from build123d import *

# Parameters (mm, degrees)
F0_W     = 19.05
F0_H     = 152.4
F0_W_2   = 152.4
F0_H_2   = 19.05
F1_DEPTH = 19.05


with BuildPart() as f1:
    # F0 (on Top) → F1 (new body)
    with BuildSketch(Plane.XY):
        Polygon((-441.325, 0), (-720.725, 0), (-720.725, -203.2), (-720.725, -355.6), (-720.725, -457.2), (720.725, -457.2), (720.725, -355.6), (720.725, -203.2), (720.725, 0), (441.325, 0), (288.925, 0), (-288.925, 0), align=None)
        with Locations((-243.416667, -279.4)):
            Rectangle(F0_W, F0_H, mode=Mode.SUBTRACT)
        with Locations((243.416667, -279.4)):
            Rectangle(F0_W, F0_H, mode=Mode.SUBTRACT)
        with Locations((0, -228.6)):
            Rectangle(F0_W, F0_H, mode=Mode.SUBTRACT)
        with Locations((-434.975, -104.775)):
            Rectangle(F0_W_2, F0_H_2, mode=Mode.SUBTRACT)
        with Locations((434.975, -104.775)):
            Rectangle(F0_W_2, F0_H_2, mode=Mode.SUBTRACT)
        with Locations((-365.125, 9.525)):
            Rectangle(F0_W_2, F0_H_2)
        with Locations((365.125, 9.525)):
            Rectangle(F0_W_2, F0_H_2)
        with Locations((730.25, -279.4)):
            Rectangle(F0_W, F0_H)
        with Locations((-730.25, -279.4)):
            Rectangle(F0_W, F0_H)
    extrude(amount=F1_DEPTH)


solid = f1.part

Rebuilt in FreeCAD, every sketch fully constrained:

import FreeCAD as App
import Part
import Sketcher
Q = App.Units.Quantity

doc = App.newDocument("Part")
body = doc.addObject("PartDesign::Body", "Body")

# Sketch on XY plane
sketch1 = body.newObject("Sketcher::SketchObject", "Sketch")
sketch1.AttachmentSupport = (doc.getObject("XY_Plane"), [""])
sketch1.MapMode = "FlatFace"
sketch1.addGeometry(Part.LineSegment(App.Vector(-721, 0, 0), App.Vector(-721, -203, 0)), False)
sketch1.addGeometry(Part.LineSegment(App.Vector(-721, -203, 0), App.Vector(-740, -203, 0)), False)
sketch1.addGeometry(Part.LineSegment(App.Vector(-740, -203, 0), App.Vector(-740, -356, 0)), False)
sketch1.addGeometry(Part.LineSegment(App.Vector(-740, -356, 0), App.Vector(-721, -356, 0)), False)
sketch1.addGeometry(Part.LineSegment(App.Vector(-721, -356, 0), App.Vector(-721, -457, 0)), False)
sketch1.addGeometry(Part.LineSegment(App.Vector(-721, -457, 0), App.Vector(721, -457, 0)), False)
sketch1.addGeometry(Part.LineSegment(App.Vector(721, -457, 0), App.Vector(721, -356, 0)), False)
sketch1.addGeometry(Part.LineSegment(App.Vector(721, -356, 0), App.Vector(740, -356, 0)), False)
sketch1.addGeometry(Part.LineSegment(App.Vector(740, -356, 0), App.Vector(740, -203, 0)), False)
sketch1.addGeometry(Part.LineSegment(App.Vector(740, -203, 0), App.Vector(721, -203, 0)), False)
sketch1.addGeometry(Part.LineSegment(App.Vector(721, -203, 0), App.Vector(721, 0, 0)), False)
sketch1.addGeometry(Part.LineSegment(App.Vector(721, 0, 0), App.Vector(441, 0, 0)), False)
sketch1.addGeometry(Part.LineSegment(App.Vector(441, 0, 0), App.Vector(441, 19, 0)), False)
sketch1.addGeometry(Part.LineSegment(App.Vector(441, 19, 0), App.Vector(289, 19, 0)), False)
sketch1.addGeometry(Part.LineSegment(App.Vector(289, 19, 0), App.Vector(289, 0, 0)), False)
sketch1.addGeometry(Part.LineSegment(App.Vector(289, 0, 0), App.Vector(-289, 0, 0)), False)
sketch1.addGeometry(Part.LineSegment(App.Vector(-289, 0, 0), App.Vector(-289, 19, 0)), False)
sketch1.addGeometry(Part.LineSegment(App.Vector(-289, 19, 0), App.Vector(-441, 19, 0)), False)
sketch1.addGeometry(Part.LineSegment(App.Vector(-441, 19, 0), App.Vector(-441, 0, 0)), False)
sketch1.addGeometry(Part.LineSegment(App.Vector(-441, 0, 0), App.Vector(-721, 0, 0)), False)
sketch1.addGeometry(Part.LineSegment(App.Vector(-234, -356, 0), App.Vector(-253, -356, 0)), False)
sketch1.addGeometry(Part.LineSegment(App.Vector(-253, -356, 0), App.Vector(-253, -203, 0)), False)
sketch1.addGeometry(Part.LineSegment(App.Vector(-253, -203, 0), App.Vector(-234, -203, 0)), False)
sketch1.addGeometry(Part.LineSegment(App.Vector(-234, -203, 0), App.Vector(-234, -356, 0)), False)
sketch1.addGeometry(Part.LineSegment(App.Vector(10, -305, 0), App.Vector(-10, -305, 0)), False)
sketch1.addGeometry(Part.LineSegment(App.Vector(-10, -305, 0), App.Vector(-10, -152, 0)), False)
sketch1.addGeometry(Part.LineSegment(App.Vector(-10, -152, 0), App.Vector(10, -152, 0)), False)
sketch1.addGeometry(Part.LineSegment(App.Vector(10, -152, 0), App.Vector(10, -305, 0)), False)
sketch1.addGeometry(Part.LineSegment(App.Vector(253, -356, 0), App.Vector(234, -356, 0)), False)
sketch1.addGeometry(Part.LineSegment(App.Vector(234, -356, 0), App.Vector(234, -203, 0)), False)
sketch1.addGeometry(Part.LineSegment(App.Vector(234, -203, 0), App.Vector(253, -203, 0)), False)
sketch1.addGeometry(Part.LineSegment(App.Vector(253, -203, 0), App.Vector(253, -356, 0)), False)
sketch1.addGeometry(Part.LineSegment(App.Vector(-359, -114, 0), App.Vector(-511, -114, 0)), False)
sketch1.addGeometry(Part.LineSegment(App.Vector(-511, -114, 0), App.Vector(-511, -95, 0)), False)
sketch1.addGeometry(Part.LineSegment(App.Vector(-511, -95, 0), App.Vector(-359, -95, 0)), False)
sketch1.addGeometry(Part.LineSegment(App.Vector(-359, -95, 0), App.Vector(-359, -114, 0)), False)
sketch1.addGeometry(Part.LineSegment(App.Vector(511, -114, 0), App.Vector(359, -114, 0)), False)
sketch1.addGeometry(Part.LineSegment(App.Vector(359, -114, 0), App.Vector(359, -95, 0)), False)
sketch1.addGeometry(Part.LineSegment(App.Vector(359, -95, 0), App.Vector(511, -95, 0)), False)
sketch1.addGeometry(Part.LineSegment(App.Vector(511, -95, 0), App.Vector(511, -114, 0)), False)
sketch1.addConstraint(Sketcher.Constraint("Coincident", 0, 2, 1, 1))
sketch1.addConstraint(Sketcher.Constraint("Coincident", 1, 2, 2, 1))
sketch1.addConstraint(Sketcher.Constraint("Coincident", 2, 2, 3, 1))
sketch1.addConstraint(Sketcher.Constraint("Coincident", 3, 2, 4, 1))
sketch1.addConstraint(Sketcher.Constraint("Coincident", 4, 2, 5, 1))
sketch1.addConstraint(Sketcher.Constraint("Coincident", 5, 2, 6, 1))
sketch1.addConstraint(Sketcher.Constraint("Coincident", 6, 2, 7, 1))
sketch1.addConstraint(Sketcher.Constraint("Coincident", 7, 2, 8, 1))
sketch1.addConstraint(Sketcher.Constraint("Coincident", 8, 2, 9, 1))
sketch1.addConstraint(Sketcher.Constraint("Coincident", 9, 2, 10, 1))
sketch1.addConstraint(Sketcher.Constraint("Coincident", 10, 2, 11, 1))
sketch1.addConstraint(Sketcher.Constraint("Coincident", 11, 2, 12, 1))
sketch1.addConstraint(Sketcher.Constraint("Coincident", 12, 2, 13, 1))
sketch1.addConstraint(Sketcher.Constraint("Coincident", 13, 2, 14, 1))
sketch1.addConstraint(Sketcher.Constraint("Coincident", 14, 2, 15, 1))
sketch1.addConstraint(Sketcher.Constraint("Coincident", 15, 2, 16, 1))
sketch1.addConstraint(Sketcher.Constraint("Coincident", 16, 2, 17, 1))
sketch1.addConstraint(Sketcher.Constraint("Coincident", 17, 2, 18, 1))
sketch1.addConstraint(Sketcher.Constraint("Coincident", 18, 2, 19, 1))
sketch1.addConstraint(Sketcher.Constraint("Coincident", 19, 2, 0, 1))
sketch1.addConstraint(Sketcher.Constraint("Coincident", 20, 2, 21, 1))
sketch1.addConstraint(Sketcher.Constraint("Coincident", 21, 2, 22, 1))
sketch1.addConstraint(Sketcher.Constraint("Coincident", 22, 2, 23, 1))
sketch1.addConstraint(Sketcher.Constraint("Coincident", 23, 2, 20, 1))
sketch1.addConstraint(Sketcher.Constraint("Coincident", 24, 2, 25, 1))
sketch1.addConstraint(Sketcher.Constraint("Coincident", 25, 2, 26, 1))
sketch1.addConstraint(Sketcher.Constraint("Coincident", 26, 2, 27, 1))
sketch1.addConstraint(Sketcher.Constraint("Coincident", 27, 2, 24, 1))
sketch1.addConstraint(Sketcher.Constraint("Coincident", 28, 2, 29, 1))
sketch1.addConstraint(Sketcher.Constraint("Coincident", 29, 2, 30, 1))
sketch1.addConstraint(Sketcher.Constraint("Coincident", 30, 2, 31, 1))
sketch1.addConstraint(Sketcher.Constraint("Coincident", 31, 2, 28, 1))
sketch1.addConstraint(Sketcher.Constraint("Coincident", 32, 2, 33, 1))
sketch1.addConstraint(Sketcher.Constraint("Coincident", 33, 2, 34, 1))
sketch1.addConstraint(Sketcher.Constraint("Coincident", 34, 2, 35, 1))
sketch1.addConstraint(Sketcher.Constraint("Coincident", 35, 2, 32, 1))
sketch1.addConstraint(Sketcher.Constraint("Coincident", 36, 2, 37, 1))
sketch1.addConstraint(Sketcher.Constraint("Coincident", 37, 2, 38, 1))
sketch1.addConstraint(Sketcher.Constraint("Coincident", 38, 2, 39, 1))
sketch1.addConstraint(Sketcher.Constraint("Coincident", 39, 2, 36, 1))
sketch1.addConstraint(Sketcher.Constraint("Vertical", 0))
sketch1.addConstraint(Sketcher.Constraint("Horizontal", 1))
sketch1.addConstraint(Sketcher.Constraint("Vertical", 2))
sketch1.addConstraint(Sketcher.Constraint("Horizontal", 3))
sketch1.addConstraint(Sketcher.Constraint("Vertical", 4))
sketch1.addConstraint(Sketcher.Constraint("Horizontal", 5))
sketch1.addConstraint(Sketcher.Constraint("Vertical", 6))
sketch1.addConstraint(Sketcher.Constraint("Horizontal", 7))
sketch1.addConstraint(Sketcher.Constraint("Vertical", 8))
sketch1.addConstraint(Sketcher.Constraint("Horizontal", 9))
sketch1.addConstraint(Sketcher.Constraint("Vertical", 10))
sketch1.addConstraint(Sketcher.Constraint("Horizontal", 11))
sketch1.addConstraint(Sketcher.Constraint("Vertical", 12))
sketch1.addConstraint(Sketcher.Constraint("Horizontal", 13))
sketch1.addConstraint(Sketcher.Constraint("Vertical", 14))
sketch1.addConstraint(Sketcher.Constraint("Horizontal", 15))
sketch1.addConstraint(Sketcher.Constraint("Vertical", 16))
sketch1.addConstraint(Sketcher.Constraint("Horizontal", 17))
sketch1.addConstraint(Sketcher.Constraint("Vertical", 18))
sketch1.addConstraint(Sketcher.Constraint("Horizontal", 19))
sketch1.addConstraint(Sketcher.Constraint("Horizontal", 20))
sketch1.addConstraint(Sketcher.Constraint("Vertical", 21))
sketch1.addConstraint(Sketcher.Constraint("Horizontal", 22))
sketch1.addConstraint(Sketcher.Constraint("Vertical", 23))
sketch1.addConstraint(Sketcher.Constraint("Horizontal", 24))
sketch1.addConstraint(Sketcher.Constraint("Vertical", 25))
sketch1.addConstraint(Sketcher.Constraint("Horizontal", 26))
sketch1.addConstraint(Sketcher.Constraint("Vertical", 27))
sketch1.addConstraint(Sketcher.Constraint("Horizontal", 28))
sketch1.addConstraint(Sketcher.Constraint("Vertical", 29))
sketch1.addConstraint(Sketcher.Constraint("Horizontal", 30))
sketch1.addConstraint(Sketcher.Constraint("Vertical", 31))
sketch1.addConstraint(Sketcher.Constraint("Horizontal", 32))
sketch1.addConstraint(Sketcher.Constraint("Vertical", 33))
sketch1.addConstraint(Sketcher.Constraint("Horizontal", 34))
sketch1.addConstraint(Sketcher.Constraint("Vertical", 35))
sketch1.addConstraint(Sketcher.Constraint("Horizontal", 36))
sketch1.addConstraint(Sketcher.Constraint("Vertical", 37))
sketch1.addConstraint(Sketcher.Constraint("Horizontal", 38))
sketch1.addConstraint(Sketcher.Constraint("Vertical", 39))
sketch1.addConstraint(Sketcher.Constraint("Symmetric", 14, 2, 15, 2, -1, 1))
sketch1.addConstraint(Sketcher.Constraint("Symmetric", 11, 2, 18, 2, -1, 1))
sketch1.addConstraint(Sketcher.Constraint("Symmetric", 3, 2, 6, 2, -2))
sketch1.addConstraint(Sketcher.Constraint("Symmetric", 1, 2, 8, 2, -2))
sketch1.addConstraint(Sketcher.Constraint("Symmetric", 10, 2, 19, 2, -2))
sketch1.addConstraint(Sketcher.Constraint("Symmetric", 23, 2, 28, 2, -2))
sketch1.addConstraint(Sketcher.Constraint("Symmetric", 21, 2, 30, 2, -2))
sketch1.addConstraint(Sketcher.Constraint("Symmetric", 35, 2, 36, 2, -2))
sketch1.addConstraint(Sketcher.Constraint("Symmetric", 33, 2, 38, 2, -2))
sketch1.addConstraint(Sketcher.Constraint("Horizontal", 13, 2, 16, 2))
sketch1.addConstraint(Sketcher.Constraint("Horizontal", 7, 2, 20, 2))
sketch1.addConstraint(Sketcher.Constraint("Horizontal", 9, 2, 21, 2))
sketch1.addConstraint(Sketcher.Constraint("Vertical", 0, 2, 3, 2))
sketch1.addConstraint(Sketcher.Constraint("Equal", 9, 20))
sketch1.addConstraint(Sketcher.Constraint("Equal", 22, 24))
sketch1.addConstraint(Sketcher.Constraint("Equal", 17, 32))
sketch1.addConstraint(Sketcher.Constraint("Equal", 38, 2))
sketch1.addConstraint(Sketcher.Constraint("Equal", 30, 12))
sketch1.addConstraint(Sketcher.Constraint("Equal", 23, 25))
sketch1.addConstraint(Sketcher.Constraint("Equal", 18, 33))
sketch1.addConstraint(Sketcher.Constraint("DistanceX", 11, 2, 11, 1, Q("11 in")))
sketch1.addConstraint(Sketcher.Constraint("DistanceX", 13, 2, 13, 1, Q("6 in")))
sketch1.addConstraint(Sketcher.Constraint("DistanceY", 0, 2, 0, 1, Q("8 in")))
sketch1.addConstraint(Sketcher.Constraint("DistanceY", 4, 2, 4, 1, Q("4 in")))
sketch1.addConstraint(Sketcher.Constraint("DistanceY", 24, 2, -1, 1, Q("12 in")))
sketch1.addConstraint(Sketcher.Constraint("DistanceX", 15, 2, 24, 2, Q("11 in")))
sketch1.addConstraint(Sketcher.Constraint("DistanceX", 1, 2, 32, 2, Q("9 in")))
sketch1.addConstraint(Sketcher.Constraint("DistanceX", 1, 2, 1, 1, Q("0.75 in")))
sketch1.addConstraint(Sketcher.Constraint("DistanceX", 5, 1, 5, 2, Q("56.75 in")))
sketch1.addConstraint(Sketcher.Constraint("DistanceY", 32, 2, -1, 1, Q("4.5 in")))
sketch1.addConstraint(Sketcher.Constraint("DistanceX", 20, 2, -1, 1, 252.941667))
pad1 = body.newObject("PartDesign::Pad", "Pad")
pad1.Profile = sketch1
pad1.Length = Q("0.75 in")

doc.recompute()
